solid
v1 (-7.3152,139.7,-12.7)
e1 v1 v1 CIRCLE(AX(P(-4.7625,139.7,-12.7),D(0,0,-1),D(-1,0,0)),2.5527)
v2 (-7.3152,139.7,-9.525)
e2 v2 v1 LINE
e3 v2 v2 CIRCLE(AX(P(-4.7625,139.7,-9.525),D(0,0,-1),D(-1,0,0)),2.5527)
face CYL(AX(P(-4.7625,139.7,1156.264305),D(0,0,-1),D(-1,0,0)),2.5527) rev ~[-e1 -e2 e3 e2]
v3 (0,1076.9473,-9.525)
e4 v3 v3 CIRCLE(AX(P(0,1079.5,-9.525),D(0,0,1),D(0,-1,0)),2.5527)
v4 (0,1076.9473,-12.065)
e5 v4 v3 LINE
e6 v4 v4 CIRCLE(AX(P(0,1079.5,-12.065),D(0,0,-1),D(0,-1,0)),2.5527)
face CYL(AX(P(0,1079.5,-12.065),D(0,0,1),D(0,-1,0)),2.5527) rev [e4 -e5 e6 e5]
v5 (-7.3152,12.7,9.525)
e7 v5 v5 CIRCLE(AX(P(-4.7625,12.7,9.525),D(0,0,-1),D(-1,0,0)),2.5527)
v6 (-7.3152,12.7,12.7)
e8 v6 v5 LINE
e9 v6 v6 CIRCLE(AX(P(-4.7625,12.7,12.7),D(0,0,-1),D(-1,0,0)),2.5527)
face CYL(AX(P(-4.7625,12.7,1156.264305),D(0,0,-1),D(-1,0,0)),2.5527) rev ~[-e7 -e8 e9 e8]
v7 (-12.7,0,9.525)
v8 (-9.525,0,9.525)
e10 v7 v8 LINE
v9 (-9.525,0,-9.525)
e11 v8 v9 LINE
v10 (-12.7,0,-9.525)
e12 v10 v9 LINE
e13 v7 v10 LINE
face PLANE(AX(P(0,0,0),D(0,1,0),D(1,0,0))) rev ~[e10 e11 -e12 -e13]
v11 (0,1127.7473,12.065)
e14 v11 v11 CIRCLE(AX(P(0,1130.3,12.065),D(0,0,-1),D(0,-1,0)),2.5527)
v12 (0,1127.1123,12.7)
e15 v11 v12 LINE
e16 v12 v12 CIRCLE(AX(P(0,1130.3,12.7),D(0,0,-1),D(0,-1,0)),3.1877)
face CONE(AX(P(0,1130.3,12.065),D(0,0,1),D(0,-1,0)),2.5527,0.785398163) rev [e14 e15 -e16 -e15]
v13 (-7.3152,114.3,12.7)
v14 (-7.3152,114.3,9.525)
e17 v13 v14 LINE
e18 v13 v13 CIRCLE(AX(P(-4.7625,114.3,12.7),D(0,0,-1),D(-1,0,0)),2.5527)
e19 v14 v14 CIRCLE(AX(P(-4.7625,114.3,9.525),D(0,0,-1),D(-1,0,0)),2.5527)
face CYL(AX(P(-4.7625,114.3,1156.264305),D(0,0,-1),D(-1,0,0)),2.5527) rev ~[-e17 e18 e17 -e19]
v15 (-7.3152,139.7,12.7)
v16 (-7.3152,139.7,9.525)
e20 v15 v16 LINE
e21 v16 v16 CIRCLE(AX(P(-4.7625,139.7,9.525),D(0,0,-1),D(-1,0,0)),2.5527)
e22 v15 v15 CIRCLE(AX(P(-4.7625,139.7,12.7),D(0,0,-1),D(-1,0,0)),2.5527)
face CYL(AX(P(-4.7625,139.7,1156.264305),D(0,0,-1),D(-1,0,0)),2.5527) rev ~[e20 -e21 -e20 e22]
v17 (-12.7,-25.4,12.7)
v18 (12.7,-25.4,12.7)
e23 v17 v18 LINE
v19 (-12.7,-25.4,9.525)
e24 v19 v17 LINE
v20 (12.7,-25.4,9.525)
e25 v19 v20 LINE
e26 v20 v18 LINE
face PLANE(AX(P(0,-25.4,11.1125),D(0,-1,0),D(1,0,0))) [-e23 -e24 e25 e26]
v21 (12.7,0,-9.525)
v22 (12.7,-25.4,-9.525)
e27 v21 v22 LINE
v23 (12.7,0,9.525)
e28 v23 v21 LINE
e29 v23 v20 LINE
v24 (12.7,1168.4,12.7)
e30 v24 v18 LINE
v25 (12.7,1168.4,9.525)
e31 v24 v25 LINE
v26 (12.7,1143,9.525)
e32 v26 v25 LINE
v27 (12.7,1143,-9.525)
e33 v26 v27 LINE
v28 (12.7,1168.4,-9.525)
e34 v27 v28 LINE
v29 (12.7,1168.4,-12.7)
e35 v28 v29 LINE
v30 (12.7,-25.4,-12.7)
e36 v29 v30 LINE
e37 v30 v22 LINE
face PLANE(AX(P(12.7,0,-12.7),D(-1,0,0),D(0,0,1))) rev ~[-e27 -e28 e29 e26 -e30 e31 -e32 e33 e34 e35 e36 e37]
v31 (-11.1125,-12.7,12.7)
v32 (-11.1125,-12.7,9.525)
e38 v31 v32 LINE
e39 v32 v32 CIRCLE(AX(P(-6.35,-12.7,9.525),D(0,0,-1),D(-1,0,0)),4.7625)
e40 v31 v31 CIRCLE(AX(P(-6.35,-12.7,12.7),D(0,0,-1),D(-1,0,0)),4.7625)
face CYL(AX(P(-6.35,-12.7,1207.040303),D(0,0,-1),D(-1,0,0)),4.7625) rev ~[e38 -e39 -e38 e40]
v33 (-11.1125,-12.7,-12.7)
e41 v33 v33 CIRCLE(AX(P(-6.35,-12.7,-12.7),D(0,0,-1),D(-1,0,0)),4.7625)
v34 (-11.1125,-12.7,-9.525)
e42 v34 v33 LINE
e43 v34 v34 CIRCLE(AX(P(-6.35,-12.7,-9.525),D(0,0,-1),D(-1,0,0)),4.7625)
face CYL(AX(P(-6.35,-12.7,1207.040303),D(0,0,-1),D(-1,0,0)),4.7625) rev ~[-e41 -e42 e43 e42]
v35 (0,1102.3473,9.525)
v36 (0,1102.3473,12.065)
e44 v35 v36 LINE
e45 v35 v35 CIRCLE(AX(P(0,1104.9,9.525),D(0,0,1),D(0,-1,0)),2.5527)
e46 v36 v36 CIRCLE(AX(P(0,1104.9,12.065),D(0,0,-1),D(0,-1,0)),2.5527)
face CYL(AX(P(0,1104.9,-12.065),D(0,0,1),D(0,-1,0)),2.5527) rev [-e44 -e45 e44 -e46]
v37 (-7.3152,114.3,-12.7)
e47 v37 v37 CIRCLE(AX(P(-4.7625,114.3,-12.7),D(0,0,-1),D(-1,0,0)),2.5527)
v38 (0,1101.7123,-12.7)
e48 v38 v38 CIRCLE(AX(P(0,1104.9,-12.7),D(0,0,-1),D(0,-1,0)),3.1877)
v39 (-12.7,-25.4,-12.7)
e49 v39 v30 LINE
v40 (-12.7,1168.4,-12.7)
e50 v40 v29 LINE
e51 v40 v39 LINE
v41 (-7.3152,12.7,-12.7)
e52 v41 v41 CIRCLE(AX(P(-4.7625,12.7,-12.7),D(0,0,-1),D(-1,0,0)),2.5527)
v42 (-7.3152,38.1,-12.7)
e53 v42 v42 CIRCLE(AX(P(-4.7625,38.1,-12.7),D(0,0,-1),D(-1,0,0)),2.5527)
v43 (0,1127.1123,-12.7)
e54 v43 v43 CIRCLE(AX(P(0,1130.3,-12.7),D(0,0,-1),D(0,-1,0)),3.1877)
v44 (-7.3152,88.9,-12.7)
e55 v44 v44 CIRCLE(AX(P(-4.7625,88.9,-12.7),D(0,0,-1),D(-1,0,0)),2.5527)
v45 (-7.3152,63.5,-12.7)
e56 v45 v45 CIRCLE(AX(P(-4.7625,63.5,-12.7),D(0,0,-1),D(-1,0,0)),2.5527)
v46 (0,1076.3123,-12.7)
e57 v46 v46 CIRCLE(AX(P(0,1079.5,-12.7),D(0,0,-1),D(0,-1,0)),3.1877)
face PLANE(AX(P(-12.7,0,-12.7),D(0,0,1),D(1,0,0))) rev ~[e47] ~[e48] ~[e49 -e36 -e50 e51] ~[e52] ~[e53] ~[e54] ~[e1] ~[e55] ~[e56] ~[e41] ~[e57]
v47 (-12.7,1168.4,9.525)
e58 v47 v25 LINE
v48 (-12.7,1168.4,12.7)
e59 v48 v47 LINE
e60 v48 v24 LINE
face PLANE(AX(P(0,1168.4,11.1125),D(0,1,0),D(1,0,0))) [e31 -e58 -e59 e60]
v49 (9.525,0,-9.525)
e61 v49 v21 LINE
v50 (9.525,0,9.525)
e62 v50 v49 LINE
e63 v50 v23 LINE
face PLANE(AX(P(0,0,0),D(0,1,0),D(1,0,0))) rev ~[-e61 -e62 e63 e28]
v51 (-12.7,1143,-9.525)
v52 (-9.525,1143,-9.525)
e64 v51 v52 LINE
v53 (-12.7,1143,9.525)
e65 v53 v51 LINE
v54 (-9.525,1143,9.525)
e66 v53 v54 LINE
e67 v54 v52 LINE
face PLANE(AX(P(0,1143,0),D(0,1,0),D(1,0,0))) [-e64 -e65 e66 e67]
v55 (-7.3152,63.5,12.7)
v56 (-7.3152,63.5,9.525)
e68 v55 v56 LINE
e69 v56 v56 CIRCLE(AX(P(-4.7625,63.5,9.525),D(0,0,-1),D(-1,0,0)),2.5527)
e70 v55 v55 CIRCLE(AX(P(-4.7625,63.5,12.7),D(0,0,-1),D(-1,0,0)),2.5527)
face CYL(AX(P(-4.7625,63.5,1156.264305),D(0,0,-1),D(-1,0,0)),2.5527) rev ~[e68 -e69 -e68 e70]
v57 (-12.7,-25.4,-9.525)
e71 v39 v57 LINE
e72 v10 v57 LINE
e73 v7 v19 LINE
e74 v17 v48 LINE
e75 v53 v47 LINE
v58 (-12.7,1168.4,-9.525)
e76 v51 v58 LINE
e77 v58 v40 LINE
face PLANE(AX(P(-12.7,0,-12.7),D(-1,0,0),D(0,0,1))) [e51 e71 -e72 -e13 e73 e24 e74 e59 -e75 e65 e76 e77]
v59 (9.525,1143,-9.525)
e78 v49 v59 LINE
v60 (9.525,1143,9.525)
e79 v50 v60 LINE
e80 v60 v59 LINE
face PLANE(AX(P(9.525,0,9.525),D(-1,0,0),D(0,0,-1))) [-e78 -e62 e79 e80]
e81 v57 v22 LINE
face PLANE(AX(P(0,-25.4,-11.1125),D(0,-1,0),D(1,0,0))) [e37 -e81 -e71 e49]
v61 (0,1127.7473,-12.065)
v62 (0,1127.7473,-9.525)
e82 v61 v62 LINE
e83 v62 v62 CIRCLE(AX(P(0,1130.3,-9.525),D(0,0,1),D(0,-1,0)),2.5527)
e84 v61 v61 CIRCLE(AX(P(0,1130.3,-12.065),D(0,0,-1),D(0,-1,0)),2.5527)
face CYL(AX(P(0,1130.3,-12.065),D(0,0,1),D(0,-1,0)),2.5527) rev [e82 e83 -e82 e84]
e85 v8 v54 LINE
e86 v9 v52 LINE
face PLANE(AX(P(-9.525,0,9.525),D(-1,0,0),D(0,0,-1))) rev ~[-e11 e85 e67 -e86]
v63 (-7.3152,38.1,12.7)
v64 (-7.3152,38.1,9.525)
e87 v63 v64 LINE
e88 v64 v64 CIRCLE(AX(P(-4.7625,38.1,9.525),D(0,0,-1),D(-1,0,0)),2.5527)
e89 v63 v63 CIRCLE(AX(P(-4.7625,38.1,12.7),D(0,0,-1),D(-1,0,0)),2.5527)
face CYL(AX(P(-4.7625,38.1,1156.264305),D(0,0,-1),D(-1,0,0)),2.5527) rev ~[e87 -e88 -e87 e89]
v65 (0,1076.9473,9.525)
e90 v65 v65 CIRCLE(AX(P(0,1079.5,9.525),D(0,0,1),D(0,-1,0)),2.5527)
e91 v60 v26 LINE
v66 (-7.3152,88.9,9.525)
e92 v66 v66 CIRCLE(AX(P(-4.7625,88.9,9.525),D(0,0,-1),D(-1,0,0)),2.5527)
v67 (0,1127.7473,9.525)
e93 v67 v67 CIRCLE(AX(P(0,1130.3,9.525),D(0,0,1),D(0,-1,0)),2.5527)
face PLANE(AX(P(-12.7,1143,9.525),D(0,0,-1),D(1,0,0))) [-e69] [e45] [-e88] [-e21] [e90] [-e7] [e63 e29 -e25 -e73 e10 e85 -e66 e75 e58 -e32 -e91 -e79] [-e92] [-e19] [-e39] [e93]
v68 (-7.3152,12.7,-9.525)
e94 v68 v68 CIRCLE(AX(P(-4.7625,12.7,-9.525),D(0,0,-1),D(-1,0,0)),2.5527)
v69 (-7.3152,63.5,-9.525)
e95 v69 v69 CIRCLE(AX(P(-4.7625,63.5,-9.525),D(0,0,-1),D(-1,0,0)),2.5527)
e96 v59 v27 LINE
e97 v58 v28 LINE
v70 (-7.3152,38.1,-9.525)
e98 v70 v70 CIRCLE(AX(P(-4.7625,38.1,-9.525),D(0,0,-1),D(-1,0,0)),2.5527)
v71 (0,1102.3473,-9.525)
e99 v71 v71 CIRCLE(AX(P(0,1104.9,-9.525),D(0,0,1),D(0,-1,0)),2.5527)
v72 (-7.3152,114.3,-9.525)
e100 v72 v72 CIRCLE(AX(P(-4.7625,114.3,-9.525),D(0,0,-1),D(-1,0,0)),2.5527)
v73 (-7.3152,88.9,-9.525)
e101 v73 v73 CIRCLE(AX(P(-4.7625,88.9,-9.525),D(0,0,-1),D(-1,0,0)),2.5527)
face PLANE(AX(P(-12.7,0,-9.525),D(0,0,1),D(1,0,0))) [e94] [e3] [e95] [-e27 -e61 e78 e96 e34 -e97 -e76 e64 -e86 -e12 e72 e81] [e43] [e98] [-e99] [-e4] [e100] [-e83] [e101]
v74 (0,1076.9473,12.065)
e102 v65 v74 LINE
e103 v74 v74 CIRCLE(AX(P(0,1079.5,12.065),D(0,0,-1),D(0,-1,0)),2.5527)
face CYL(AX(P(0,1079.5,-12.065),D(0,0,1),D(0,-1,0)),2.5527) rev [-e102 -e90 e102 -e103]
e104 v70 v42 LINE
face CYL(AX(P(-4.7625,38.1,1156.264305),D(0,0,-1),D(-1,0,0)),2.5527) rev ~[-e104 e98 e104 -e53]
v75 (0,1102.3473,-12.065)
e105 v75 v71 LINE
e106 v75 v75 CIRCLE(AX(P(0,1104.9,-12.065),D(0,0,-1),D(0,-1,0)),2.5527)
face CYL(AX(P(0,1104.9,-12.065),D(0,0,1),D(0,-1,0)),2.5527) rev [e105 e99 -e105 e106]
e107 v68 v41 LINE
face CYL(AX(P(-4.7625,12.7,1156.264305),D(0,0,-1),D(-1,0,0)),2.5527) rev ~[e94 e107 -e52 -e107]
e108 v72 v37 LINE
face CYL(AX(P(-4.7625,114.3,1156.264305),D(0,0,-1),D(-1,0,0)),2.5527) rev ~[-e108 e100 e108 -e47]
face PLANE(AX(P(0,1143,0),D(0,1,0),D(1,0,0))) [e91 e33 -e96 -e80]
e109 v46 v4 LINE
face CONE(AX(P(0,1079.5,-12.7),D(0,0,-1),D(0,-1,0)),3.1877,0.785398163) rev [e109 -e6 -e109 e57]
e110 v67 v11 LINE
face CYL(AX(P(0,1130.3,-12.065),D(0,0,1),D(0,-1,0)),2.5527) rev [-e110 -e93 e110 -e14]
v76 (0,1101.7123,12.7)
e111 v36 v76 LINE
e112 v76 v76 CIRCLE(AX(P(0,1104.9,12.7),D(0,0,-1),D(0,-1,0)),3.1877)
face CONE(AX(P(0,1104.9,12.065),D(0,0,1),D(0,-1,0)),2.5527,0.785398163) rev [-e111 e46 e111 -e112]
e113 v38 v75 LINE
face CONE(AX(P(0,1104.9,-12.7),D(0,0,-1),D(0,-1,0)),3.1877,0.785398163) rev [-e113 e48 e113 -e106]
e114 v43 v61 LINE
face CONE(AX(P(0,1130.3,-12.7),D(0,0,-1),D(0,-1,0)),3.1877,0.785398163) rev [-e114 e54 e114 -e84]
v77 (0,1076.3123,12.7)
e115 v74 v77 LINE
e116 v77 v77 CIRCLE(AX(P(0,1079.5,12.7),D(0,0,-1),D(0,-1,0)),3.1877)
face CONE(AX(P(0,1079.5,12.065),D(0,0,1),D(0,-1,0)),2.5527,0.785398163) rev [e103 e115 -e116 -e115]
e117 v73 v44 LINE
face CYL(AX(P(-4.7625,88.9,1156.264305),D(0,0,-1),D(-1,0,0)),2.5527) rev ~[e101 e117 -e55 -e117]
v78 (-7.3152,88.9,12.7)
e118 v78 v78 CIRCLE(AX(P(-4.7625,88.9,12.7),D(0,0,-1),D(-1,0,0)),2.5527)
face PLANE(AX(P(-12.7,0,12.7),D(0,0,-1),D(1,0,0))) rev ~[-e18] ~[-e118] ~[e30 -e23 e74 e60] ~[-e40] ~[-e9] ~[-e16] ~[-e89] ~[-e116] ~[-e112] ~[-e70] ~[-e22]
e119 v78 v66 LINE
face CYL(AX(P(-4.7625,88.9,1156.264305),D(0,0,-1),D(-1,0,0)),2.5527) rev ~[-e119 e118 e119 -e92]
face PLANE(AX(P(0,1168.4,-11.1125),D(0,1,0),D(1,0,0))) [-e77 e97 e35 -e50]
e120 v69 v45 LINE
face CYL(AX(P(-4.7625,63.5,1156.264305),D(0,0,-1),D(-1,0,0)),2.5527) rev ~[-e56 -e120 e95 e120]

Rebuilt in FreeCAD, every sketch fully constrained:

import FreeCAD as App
import Part
import Sketcher
Q = App.Units.Quantity

doc = App.newDocument("Part")
body = doc.addObject("PartDesign::Body", "Body")

# Sketch on XZ plane
sketch1 = body.newObject("Sketcher::SketchObject", "Sketch")
sketch1.AttachmentSupport = (doc.getObject("XZ_Plane"), [""])
sketch1.MapMode = "FlatFace"
sketch1.addGeometry([
    Part.LineSegment(App.Vector(-13, -13, 0), App.Vector(-13, 13, 0)),  # 0
    Part.LineSegment(App.Vector(-13, 13, 0), App.Vector(13, 13, 0)),  # 1
    Part.LineSegment(App.Vector(13, 13, 0), App.Vector(13, -13, 0)),  # 2
    Part.LineSegment(App.Vector(13, -13, 0), App.Vector(-13, -13, 0)),  # 3
    Part.LineSegment(App.Vector(10, 10, 0), App.Vector(-10, 10, 0)),  # 4
    Part.LineSegment(App.Vector(-10, 10, 0), App.Vector(-10, -10, 0)),  # 5
    Part.LineSegment(App.Vector(-10, -10, 0), App.Vector(10, -10, 0)),  # 6
    Part.LineSegment(App.Vector(10, -10, 0), App.Vector(10, 10, 0)),  # 7
], False)
sketch1.addConstraint([
    Sketcher.Constraint("Coincident", 0, 2, 1, 1),
    Sketcher.Constraint("Coincident", 1, 2, 2, 1),
    Sketcher.Constraint("Coincident", 2, 2, 3, 1),
    Sketcher.Constraint("Coincident", 3, 2, 0, 1),
    Sketcher.Constraint("Coincident", 4, 2, 5, 1),
    Sketcher.Constraint("Coincident", 5, 2, 6, 1),
    Sketcher.Constraint("Coincident", 6, 2, 7, 1),
    Sketcher.Constraint("Coincident", 7, 2, 4, 1),
    Sketcher.Constraint("Vertical", 0),
    Sketcher.Constraint("Horizontal", 1),
    Sketcher.Constraint("Vertical", 2),
    Sketcher.Constraint("Horizontal", 3),
    Sketcher.Constraint("Horizontal", 4),
    Sketcher.Constraint("Vertical", 5),
    Sketcher.Constraint("Horizontal", 6),
    Sketcher.Constraint("Vertical", 7),
    Sketcher.Constraint("Symmetric", 0, 2, 2, 2, -1, 1),
    Sketcher.Constraint("Symmetric", 4, 2, 6, 2, -1, 1),
    Sketcher.Constraint("Equal", 3, 0),
    Sketcher.Constraint("Equal", 6, 5),
    Sketcher.Constraint("DistanceX", 1, 1, 1, 2, Q("1 in")),
    Sketcher.Constraint("DistanceX", 4, 2, 4, 1, Q("0.75 in")),
])
pad1 = body.newObject("PartDesign::Pad", "Pad")
pad1.Profile = sketch1
pad1.Length = Q("45 in")
pad1.Reversed = True

# Sketch on XY plane
sketch2 = body.newObject("Sketcher::SketchObject", "Sketch001")
sketch2.AttachmentSupport = (doc.getObject("XY_Plane"), [""])
sketch2.MapMode = "FlatFace"
sketch2.AttachmentOffset = App.Placement(App.Vector(0, 0, 0.5 * 25.4), App.Rotation())
sketch2.addGeometry([
    Part.Circle(App.Vector(-4.8, 114.3, 0), App.Vector(0, 0, 1), 2.6),  # 0
    Part.Circle(App.Vector(-4.8, 63.5, 0), App.Vector(0, 0, 1), 2.6),  # 1
    Part.Circle(App.Vector(-4.8, 38.1, 0), App.Vector(0, 0, 1), 2.6),  # 2
    Part.Circle(App.Vector(-4.8, 12.7, 0), App.Vector(0, 0, 1), 2.6),  # 3
    Part.Circle(App.Vector(-4.8, 139.7, 0), App.Vector(0, 0, 1), 2.6),  # 4
    Part.Circle(App.Vector(-4.8, 88.9, 0), App.Vector(0, 0, 1), 2.6),  # 5
], False)
sketch2.addConstraint([
    Sketcher.Constraint("Equal", 0, 1),
    Sketcher.Constraint("Equal", 1, 2),
    Sketcher.Constraint("Equal", 2, 3),
    Sketcher.Constraint("Equal", 3, 4),
    Sketcher.Constraint("Equal", 4, 5),
    Sketcher.Constraint("Vertical", 0, 3, 1, 3),
    Sketcher.Constraint("Vertical", 1, 3, 2, 3),
    Sketcher.Constraint("Vertical", 2, 3, 3, 3),
    Sketcher.Constraint("Vertical", 3, 3, 4, 3),
    Sketcher.Constraint("Vertical", 4, 3, 5, 3),
    Sketcher.Constraint("Diameter", 0, Q("0.201 in")),
    Sketcher.Constraint("DistanceY", 1, 3, 0, 3, Q("2 in")),
    Sketcher.Constraint("DistanceY", 2, 3, 1, 3, Q("1 in")),
    Sketcher.Constraint("DistanceY", 3, 3, 2, 3, Q("1 in")),
    Sketcher.Constraint("DistanceY", 0, 3, 4, 3, Q("1 in")),
    Sketcher.Constraint("DistanceY", 5, 3, 0, 3, Q("1 in")),
    Sketcher.Constraint("DistanceY", -1, 1, 0, 3, Q("4.5 in")),
    Sketcher.Constraint("DistanceX", 0, 3, -1, 1, Q("0.1875 in")),
])
doc.recompute()
hole = body.newObject("PartDesign::Hole", "Hole")
hole.Profile = sketch2
hole.ThreadType = "None"
hole.Diameter = Q("0.201 in")
hole.DepthType = "ThroughAll"

# Sketch on YZ plane
sketch3 = body.newObject("Sketcher::SketchObject", "Sketch002")
sketch3.AttachmentSupport = (doc.getObject("YZ_Plane"), [""])
sketch3.MapMode = "FlatFace"
sketch3.addGeometry([
    Part.LineSegment(App.Vector(1130.3, -12.7, 0), App.Vector(1130.3, 12.7, 0)),  # 0
    Part.LineSegment(App.Vector(1130.3, 12.7, 0), App.Vector(1127.1, 12.7, 0)),  # 1
    Part.LineSegment(App.Vector(1127.1, 12.7, 0), App.Vector(1127.7, 12.1, 0)),  # 2
    Part.LineSegment(App.Vector(1127.7, 12.1, 0), App.Vector(1127.7, -12.1, 0)),  # 3
    Part.LineSegment(App.Vector(1127.7, -12.1, 0), App.Vector(1127.1, -12.7, 0)),  # 4
    Part.LineSegment(App.Vector(1127.1, -12.7, 0), App.Vector(1130.3, -12.7, 0)),  # 5
], False)
sketch3.addGeometry(Part.LineSegment(App.Vector(1130.3, 12.7, 0), App.Vector(1130.3, -12.7, 0)), True)  # axis
sketch3.addConstraint([
    Sketcher.Constraint("Coincident", 0, 2, 1, 1),
    Sketcher.Constraint("Coincident", 1, 2, 2, 1),
    Sketcher.Constraint("Coincident", 2, 2, 3, 1),
    Sketcher.Constraint("Coincident", 3, 2, 4, 1),
    Sketcher.Constraint("Coincident", 4, 2, 5, 1),
    Sketcher.Constraint("Coincident", 5, 2, 0, 1),
    Sketcher.Constraint("Vertical", 0),
    Sketcher.Constraint("Horizontal", 1),
    Sketcher.Constraint("Vertical", 3),
    Sketcher.Constraint("Horizontal", 5),
    Sketcher.Constraint("Vertical", 6),
    Sketcher.Constraint("Coincident", 6, 1, 0, 2),
    Sketcher.Constraint("Symmetric", 1, 2, 4, 2, -1),
    Sketcher.Constraint("Perpendicular", 2, 4),
    Sketcher.Constraint("Horizontal", 4, 2, 6, 2),
    Sketcher.Constraint("Equal", 2, 4),
    Sketcher.Constraint("DistanceY", 0, 1, 0, 2, Q("1 in")),
    Sketcher.Constraint("DistanceY", 3, 2, 3, 1, Q("0.95 in")),
    Sketcher.Constraint("DistanceX", -1, 1, 0, 2, Q("44.5 in")),
    Sketcher.Constraint("DistanceX", 1, 2, 1, 1, Q("0.1255 in")),
])
groove = body.newObject("PartDesign::Groove", "Groove")
groove.Profile = sketch3
groove.ReferenceAxis = (sketch3, ["Axis0"])
groove.Angle = 360
doc.recompute()

linearpattern = body.newObject("PartDesign::LinearPattern", "LinearPattern")
linearpattern.Originals = [groove]
linearpattern.Direction = (doc.getObject("Y_Axis"), [""])
linearpattern.Mode = "offset"
linearpattern.Offset = Q("2 in")
linearpattern.Occurrences = 2
linearpattern.Reversed = True
body.Tip = linearpattern
doc.recompute()

linearpattern2 = body.newObject("PartDesign::LinearPattern", "LinearPattern001")
linearpattern2.Originals = [groove]
linearpattern2.Direction = (doc.getObject("Y_Axis"), [""])
linearpattern2.Mode = "offset"
linearpattern2.Offset = Q("1 in")
linearpattern2.Occurrences = 2
linearpattern2.Reversed = True
body.Tip = linearpattern2

# Sketch on XZ plane
sketch4 = body.newObject("Sketcher::SketchObject", "Sketch003")
sketch4.AttachmentSupport = (doc.getObject("XZ_Plane"), [""])
sketch4.MapMode = "FlatFace"
sketch4.AttachmentOffset = App.Placement(App.Vector(0, 0, -45 * 25.4), App.Rotation())
sketch4.addGeometry([
    Part.LineSegment(App.Vector(-12.7, -12.7, 0), App.Vector(-12.7, -9.5, 0)),  # 0
    Part.LineSegment(App.Vector(-12.7, -9.5, 0), App.Vector(12.7, -9.5, 0)),  # 1
    Part.LineSegment(App.Vector(12.7, -9.5, 0), App.Vector(12.7, -12.7, 0)),  # 2
    Part.LineSegment(App.Vector(12.7, -12.7, 0), App.Vector(-12.7, -12.7, 0)),  # 3
    Part.LineSegment(App.Vector(-12.7, 9.5, 0), App.Vector(-12.7, 12.7, 0)),  # 4
    Part.LineSegment(App.Vector(-12.7, 12.7, 0), App.Vector(12.7, 12.7, 0)),  # 5
    Part.LineSegment(App.Vector(12.7, 12.7, 0), App.Vector(12.7, 9.5, 0)),  # 6
    Part.LineSegment(App.Vector(12.7, 9.5, 0), App.Vector(-12.7, 9.5, 0)),  # 7
], False)
sketch4.addConstraint([
    Sketcher.Constraint("Coincident", 0, 2, 1, 1),
    Sketcher.Constraint("Coincident", 1, 2, 2, 1),
    Sketcher.Constraint("Coincident", 2, 2, 3, 1),
    Sketcher.Constraint("Coincident", 3, 2, 0, 1),
    Sketcher.Constraint("Coincident", 4, 2, 5, 1),
    Sketcher.Constraint("Coincident", 5, 2, 6, 1),
    Sketcher.Constraint("Coincident", 6, 2, 7, 1),
    Sketcher.Constraint("Coincident", 7, 2, 4, 1),
    Sketcher.Constraint("Vertical", 0),
    Sketcher.Constraint("Horizontal", 1),
    Sketcher.Constraint("Vertical", 2),
    Sketcher.Constraint("Horizontal", 3),
    Sketcher.Constraint("Vertical", 4),
    Sketcher.Constraint("Horizontal", 5),
    Sketcher.Constraint("Vertical", 6),
    Sketcher.Constraint("Horizontal", 7),
    Sketcher.Constraint("Symmetric", 2, 2, 4, 2, -1, 1),
    Sketcher.Constraint("Symmetric", 0, 2, 6, 2, -1, 1),
    Sketcher.Constraint("Vertical", 3, 2, 4, 2),
    Sketcher.Constraint("DistanceX", 1, 1, 1, 2, Q("1 in")),
    Sketcher.Constraint("DistanceY", 3, 2, 4, 2, Q("1 in")),
    Sketcher.Constraint("DistanceY", 0, 1, 0, 2, Q("0.125 in")),
])
pad2 = body.newObject("PartDesign::Pad", "Pad001")
pad2.Profile = sketch4
pad2.Length = Q("1 in")
pad2.Reversed = True

# Sketch on XZ plane
sketch5 = body.newObject("Sketcher::SketchObject", "Sketch004")
sketch5.AttachmentSupport = (doc.getObject("XZ_Plane"), [""])
sketch5.MapMode = "FlatFace"
sketch5.addGeometry([
    Part.LineSegment(App.Vector(-12.7, -9.5, 0), App.Vector(-12.7, -12.7, 0)),  # 0
    Part.LineSegment(App.Vector(-12.7, -12.7, 0), App.Vector(12.7, -12.7, 0)),  # 1
    Part.LineSegment(App.Vector(12.7, -12.7, 0), App.Vector(12.7, -9.5, 0)),  # 2
    Part.LineSegment(App.Vector(12.7, -9.5, 0), App.Vector(-12.7, -9.5, 0)),  # 3
    Part.LineSegment(App.Vector(-12.7, 12.7, 0), App.Vector(-12.7, 9.5, 0)),  # 4
    Part.LineSegment(App.Vector(-12.7, 9.5, 0), App.Vector(12.7, 9.5, 0)),  # 5
    Part.LineSegment(App.Vector(12.7, 9.5, 0), App.Vector(12.7, 12.7, 0)),  # 6
    Part.LineSegment(App.Vector(12.7, 12.7, 0), App.Vector(-12.7, 12.7, 0)),  # 7
], False)
sketch5.addConstraint([
    Sketcher.Constraint("Coincident", 0, 2, 1, 1),
    Sketcher.Constraint("Coincident", 1, 2, 2, 1),
    Sketcher.Constraint("Coincident", 2, 2, 3, 1),
    Sketcher.Constraint("Coincident", 3, 2, 0, 1),
    Sketcher.Constraint("Coincident", 4, 2, 5, 1),
    Sketcher.Constraint("Coincident", 5, 2, 6, 1),
    Sketcher.Constraint("Coincident", 6, 2, 7, 1),
    Sketcher.Constraint("Coincident", 7, 2, 4, 1),
    Sketcher.Constraint("Vertical", 0),
    Sketcher.Constraint("Horizontal", 1),
    Sketcher.Constraint("Vertical", 2),
    Sketcher.Constraint("Horizontal", 3),
    Sketcher.Constraint("Vertical", 4),
    Sketcher.Constraint("Horizontal", 5),
    Sketcher.Constraint("Vertical", 6),
    Sketcher.Constraint("Horizontal", 7),
    Sketcher.Constraint("Symmetric", 2, 2, 4, 2, -1, 1),
    Sketcher.Constraint("Symmetric", 0, 2, 6, 2, -1, 1),
    Sketcher.Constraint("Vertical", 3, 2, 4, 2),
    Sketcher.Constraint("DistanceX", 1, 1, 1, 2, Q("1 in")),
    Sketcher.Constraint("DistanceY", 1, 2, 6, 2, Q("1 in")),
    Sketcher.Constraint("DistanceY", 0, 2, 0, 1, Q("0.125 in")),
])
pad3 = body.newObject("PartDesign::Pad", "Pad002")
pad3.Profile = sketch5
pad3.Length = Q("1 in")

# Sketch on XY plane
sketch6 = body.newObject("Sketcher::SketchObject", "Sketch005")
sketch6.AttachmentSupport = (doc.getObject("XY_Plane"), [""])
sketch6.MapMode = "FlatFace"
sketch6.AttachmentOffset = App.Placement(App.Vector(0, 0, 0.5 * 25.4), App.Rotation())
sketch6.addGeometry(Part.Circle(App.Vector(-6.3, -12.7, 0), App.Vector(0, 0, 1), 4.8), False)
sketch6.addConstraint([
    Sketcher.Constraint("Diameter", 0, Q("0.375 in")),
    Sketcher.Constraint("DistanceY", 0, 3, -1, 1, Q("0.5 in")),
    Sketcher.Constraint("DistanceX", 0, 3, -1, 1, Q("0.25 in")),
])
doc.recompute()
hole2 = body.newObject("PartDesign::Hole", "Hole001")
hole2.Profile = sketch6
hole2.ThreadType = "None"
hole2.Diameter = Q("0.375 in")
hole2.DepthType = "ThroughAll"

doc.recompute()
